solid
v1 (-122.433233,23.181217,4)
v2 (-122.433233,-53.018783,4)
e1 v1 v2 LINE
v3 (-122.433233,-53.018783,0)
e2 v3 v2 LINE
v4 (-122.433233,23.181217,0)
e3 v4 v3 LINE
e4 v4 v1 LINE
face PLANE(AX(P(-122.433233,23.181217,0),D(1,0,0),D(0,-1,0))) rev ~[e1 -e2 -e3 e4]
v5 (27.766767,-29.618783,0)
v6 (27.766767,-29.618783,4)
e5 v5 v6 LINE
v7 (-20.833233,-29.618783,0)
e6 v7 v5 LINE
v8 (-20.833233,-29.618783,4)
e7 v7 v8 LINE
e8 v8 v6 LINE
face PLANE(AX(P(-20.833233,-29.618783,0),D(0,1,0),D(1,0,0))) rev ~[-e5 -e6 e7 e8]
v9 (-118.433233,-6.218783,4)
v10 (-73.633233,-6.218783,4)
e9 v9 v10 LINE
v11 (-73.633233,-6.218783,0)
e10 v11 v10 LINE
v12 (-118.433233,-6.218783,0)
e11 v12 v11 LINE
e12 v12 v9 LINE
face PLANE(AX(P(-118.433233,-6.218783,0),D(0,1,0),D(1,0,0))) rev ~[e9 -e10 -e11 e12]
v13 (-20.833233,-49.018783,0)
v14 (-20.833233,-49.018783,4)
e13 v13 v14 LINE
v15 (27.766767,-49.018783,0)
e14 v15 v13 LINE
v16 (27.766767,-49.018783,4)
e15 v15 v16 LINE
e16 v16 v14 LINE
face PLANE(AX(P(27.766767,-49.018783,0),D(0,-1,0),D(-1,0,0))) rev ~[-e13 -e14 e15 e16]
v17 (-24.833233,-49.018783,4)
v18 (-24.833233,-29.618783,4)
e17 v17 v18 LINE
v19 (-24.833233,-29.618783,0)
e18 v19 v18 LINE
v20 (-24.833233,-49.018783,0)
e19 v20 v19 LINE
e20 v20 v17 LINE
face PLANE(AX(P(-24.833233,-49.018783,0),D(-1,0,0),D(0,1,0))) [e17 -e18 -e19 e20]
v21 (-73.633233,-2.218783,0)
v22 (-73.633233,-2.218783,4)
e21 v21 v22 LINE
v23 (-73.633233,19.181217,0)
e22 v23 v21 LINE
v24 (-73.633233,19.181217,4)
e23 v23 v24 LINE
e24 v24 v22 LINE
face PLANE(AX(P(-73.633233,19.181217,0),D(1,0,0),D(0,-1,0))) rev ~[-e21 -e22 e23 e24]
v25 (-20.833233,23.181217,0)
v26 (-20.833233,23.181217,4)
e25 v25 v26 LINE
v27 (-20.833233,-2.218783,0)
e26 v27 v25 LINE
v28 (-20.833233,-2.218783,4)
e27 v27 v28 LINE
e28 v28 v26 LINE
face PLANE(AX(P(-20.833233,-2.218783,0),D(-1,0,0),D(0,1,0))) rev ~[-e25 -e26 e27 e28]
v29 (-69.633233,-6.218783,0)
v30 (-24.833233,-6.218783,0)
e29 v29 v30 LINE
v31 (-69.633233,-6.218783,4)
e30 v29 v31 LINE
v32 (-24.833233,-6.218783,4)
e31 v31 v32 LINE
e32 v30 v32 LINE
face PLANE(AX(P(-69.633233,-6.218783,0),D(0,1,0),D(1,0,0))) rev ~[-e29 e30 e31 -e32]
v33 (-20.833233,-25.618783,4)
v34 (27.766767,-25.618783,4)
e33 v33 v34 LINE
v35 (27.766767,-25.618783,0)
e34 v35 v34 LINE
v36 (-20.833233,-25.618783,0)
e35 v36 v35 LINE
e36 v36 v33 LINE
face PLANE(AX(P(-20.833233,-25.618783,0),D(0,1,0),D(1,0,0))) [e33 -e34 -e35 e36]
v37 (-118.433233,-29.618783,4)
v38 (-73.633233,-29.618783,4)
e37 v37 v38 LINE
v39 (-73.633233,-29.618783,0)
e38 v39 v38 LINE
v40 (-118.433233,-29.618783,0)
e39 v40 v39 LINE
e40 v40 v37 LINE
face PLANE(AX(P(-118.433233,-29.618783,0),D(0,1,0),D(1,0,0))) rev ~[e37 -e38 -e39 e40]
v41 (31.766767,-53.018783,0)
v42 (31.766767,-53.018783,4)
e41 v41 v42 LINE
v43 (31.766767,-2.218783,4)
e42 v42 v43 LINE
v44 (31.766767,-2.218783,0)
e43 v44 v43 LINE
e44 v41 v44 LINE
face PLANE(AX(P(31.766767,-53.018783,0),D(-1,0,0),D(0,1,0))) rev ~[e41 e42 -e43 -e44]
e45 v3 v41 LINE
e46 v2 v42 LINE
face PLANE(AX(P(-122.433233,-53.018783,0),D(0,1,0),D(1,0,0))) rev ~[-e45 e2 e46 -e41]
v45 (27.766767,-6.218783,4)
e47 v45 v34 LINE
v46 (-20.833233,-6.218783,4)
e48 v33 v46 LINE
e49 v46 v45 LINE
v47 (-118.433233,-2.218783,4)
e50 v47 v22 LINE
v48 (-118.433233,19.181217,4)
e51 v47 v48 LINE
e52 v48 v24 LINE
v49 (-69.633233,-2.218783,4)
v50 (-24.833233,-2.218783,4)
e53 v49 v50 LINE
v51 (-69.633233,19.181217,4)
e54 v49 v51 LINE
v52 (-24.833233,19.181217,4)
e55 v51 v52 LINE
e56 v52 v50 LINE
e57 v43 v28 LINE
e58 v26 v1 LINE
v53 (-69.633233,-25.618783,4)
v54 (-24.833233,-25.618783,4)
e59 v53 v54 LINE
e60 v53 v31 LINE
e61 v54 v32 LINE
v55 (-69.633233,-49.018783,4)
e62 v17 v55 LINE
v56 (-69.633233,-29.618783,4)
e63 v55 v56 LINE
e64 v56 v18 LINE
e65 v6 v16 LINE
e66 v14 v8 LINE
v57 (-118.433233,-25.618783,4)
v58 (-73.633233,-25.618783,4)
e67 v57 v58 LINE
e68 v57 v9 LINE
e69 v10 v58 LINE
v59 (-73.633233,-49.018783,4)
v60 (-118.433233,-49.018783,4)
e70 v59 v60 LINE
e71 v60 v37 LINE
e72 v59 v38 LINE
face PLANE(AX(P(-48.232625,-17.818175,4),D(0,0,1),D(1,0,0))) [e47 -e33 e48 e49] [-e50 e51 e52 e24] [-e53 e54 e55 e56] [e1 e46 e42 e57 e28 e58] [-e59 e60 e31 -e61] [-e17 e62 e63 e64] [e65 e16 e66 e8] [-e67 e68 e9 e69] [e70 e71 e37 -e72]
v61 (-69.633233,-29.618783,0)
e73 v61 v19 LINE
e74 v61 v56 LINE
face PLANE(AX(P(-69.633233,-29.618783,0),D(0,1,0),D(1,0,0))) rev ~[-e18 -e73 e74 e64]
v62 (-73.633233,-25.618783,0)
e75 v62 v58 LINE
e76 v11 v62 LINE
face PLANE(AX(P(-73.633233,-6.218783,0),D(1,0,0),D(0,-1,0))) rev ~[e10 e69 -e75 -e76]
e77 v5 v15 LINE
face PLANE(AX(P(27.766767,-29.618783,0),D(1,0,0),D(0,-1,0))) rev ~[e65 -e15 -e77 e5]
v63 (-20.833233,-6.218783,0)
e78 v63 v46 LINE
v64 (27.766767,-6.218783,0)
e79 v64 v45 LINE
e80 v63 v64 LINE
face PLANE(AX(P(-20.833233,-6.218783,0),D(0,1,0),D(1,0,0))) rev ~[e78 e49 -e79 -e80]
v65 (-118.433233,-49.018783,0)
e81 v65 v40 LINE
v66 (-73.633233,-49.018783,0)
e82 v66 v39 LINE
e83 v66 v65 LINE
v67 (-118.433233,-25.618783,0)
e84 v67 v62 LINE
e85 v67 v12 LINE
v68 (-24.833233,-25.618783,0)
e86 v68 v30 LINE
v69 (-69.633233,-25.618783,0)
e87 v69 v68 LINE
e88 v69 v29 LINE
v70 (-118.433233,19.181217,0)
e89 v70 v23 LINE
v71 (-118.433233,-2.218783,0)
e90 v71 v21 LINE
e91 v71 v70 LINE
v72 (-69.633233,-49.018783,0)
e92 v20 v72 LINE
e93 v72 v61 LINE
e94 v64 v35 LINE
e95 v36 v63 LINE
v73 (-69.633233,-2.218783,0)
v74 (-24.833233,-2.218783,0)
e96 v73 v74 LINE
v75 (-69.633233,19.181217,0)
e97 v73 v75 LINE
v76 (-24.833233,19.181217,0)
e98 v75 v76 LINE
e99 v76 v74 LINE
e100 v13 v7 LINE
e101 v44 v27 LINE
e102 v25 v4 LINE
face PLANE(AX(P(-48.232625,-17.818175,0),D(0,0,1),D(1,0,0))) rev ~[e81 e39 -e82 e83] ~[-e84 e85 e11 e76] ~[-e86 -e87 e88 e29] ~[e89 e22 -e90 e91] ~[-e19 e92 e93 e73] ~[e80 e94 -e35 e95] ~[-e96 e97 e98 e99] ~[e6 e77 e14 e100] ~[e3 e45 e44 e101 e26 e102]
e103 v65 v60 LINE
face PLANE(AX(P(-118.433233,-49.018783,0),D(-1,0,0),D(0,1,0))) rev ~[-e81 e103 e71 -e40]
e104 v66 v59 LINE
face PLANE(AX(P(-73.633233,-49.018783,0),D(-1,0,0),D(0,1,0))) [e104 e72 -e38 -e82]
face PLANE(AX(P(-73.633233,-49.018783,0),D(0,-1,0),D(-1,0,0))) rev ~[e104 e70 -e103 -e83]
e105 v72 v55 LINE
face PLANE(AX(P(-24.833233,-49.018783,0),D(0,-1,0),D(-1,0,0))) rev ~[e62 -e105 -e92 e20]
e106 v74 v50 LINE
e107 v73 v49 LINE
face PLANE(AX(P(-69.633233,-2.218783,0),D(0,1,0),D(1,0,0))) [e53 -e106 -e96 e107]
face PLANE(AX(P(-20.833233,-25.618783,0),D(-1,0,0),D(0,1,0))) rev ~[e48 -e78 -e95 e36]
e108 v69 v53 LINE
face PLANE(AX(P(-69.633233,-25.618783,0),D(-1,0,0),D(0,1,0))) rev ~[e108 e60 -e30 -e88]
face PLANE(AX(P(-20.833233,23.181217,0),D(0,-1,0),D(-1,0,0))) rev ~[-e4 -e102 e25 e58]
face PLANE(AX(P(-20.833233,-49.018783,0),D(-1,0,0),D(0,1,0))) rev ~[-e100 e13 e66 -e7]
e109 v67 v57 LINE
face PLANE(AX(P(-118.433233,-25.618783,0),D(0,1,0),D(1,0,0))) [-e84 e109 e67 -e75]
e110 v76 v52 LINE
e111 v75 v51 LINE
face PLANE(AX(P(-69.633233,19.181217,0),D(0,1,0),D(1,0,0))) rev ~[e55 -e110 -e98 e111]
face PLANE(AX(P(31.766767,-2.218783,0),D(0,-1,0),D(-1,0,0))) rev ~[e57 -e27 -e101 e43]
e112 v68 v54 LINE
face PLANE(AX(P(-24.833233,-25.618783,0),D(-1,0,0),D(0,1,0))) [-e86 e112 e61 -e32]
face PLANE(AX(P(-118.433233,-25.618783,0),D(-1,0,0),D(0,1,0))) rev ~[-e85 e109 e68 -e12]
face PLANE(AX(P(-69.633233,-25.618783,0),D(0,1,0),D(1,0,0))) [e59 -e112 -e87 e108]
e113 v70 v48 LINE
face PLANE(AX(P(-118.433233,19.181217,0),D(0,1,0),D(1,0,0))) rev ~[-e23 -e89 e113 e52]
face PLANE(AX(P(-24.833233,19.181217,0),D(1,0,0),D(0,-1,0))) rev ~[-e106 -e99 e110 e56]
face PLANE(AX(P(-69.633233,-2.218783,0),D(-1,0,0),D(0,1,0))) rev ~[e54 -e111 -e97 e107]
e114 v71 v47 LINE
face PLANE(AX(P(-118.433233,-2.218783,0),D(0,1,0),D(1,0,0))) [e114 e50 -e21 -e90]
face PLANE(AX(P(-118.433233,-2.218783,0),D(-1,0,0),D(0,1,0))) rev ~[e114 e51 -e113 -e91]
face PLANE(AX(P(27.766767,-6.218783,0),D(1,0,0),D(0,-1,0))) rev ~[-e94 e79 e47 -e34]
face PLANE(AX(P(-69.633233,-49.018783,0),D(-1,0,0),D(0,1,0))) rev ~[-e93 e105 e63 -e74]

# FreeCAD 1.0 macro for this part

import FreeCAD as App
import Part
import Sketcher
Q = App.Units.Quantity

doc = App.newDocument("Part")
params = doc.addObject("Spreadsheet::Sheet", "Params")
for row, (alias, value) in enumerate([
    ("sketch1_width", "52.6 mm"),
    ("sketch1_width2", "101.6 mm"),
    ("sketch1_width3", "44.8 mm"),
    ("sketch1_width4", "48.6 mm"),
    ("sketch1_height", "25.4 mm"),
    ("pad1_length", "4 mm"),
], start=1):
    params.set(f"A{row}", alias)
    params.set(f"B{row}", "=" + value)
    params.setAlias(f"B{row}", alias)

body = doc.addObject("PartDesign::Body", "Body")

sketch1 = doc.addObject("Sketcher::SketchObject", "Sketch")
body.addObject(sketch1)
sketch1.AttachmentSupport = (doc.XY_Plane, [""])
sketch1.MapMode = "FlatFace"
sketch1.addGeometry(Part.LineSegment(App.Vector(32, -2, 0), App.Vector(-21, -2, 0)), False)
sketch1.addGeometry(Part.LineSegment(App.Vector(-21, -2, 0), App.Vector(-21, 23, 0)), False)
sketch1.addGeometry(Part.LineSegment(App.Vector(-21, 23, 0), App.Vector(-122, 23, 0)), False)
sketch1.addGeometry(Part.LineSegment(App.Vector(-122, 23, 0), App.Vector(-122, -53, 0)), False)
sketch1.addGeometry(Part.LineSegment(App.Vector(-122, -53, 0), App.Vector(32, -53, 0)), False)
sketch1.addGeometry(Part.LineSegment(App.Vector(32, -53, 0), App.Vector(32, -2, 0)), False)
sketch1.addGeometry(Part.LineSegment(App.Vector(-118, -30, 0), App.Vector(-74, -30, 0)), False)
sketch1.addGeometry(Part.LineSegment(App.Vector(-74, -30, 0), App.Vector(-74, -49, 0)), False)
sketch1.addGeometry(Part.LineSegment(App.Vector(-74, -49, 0), App.Vector(-118, -49, 0)), False)
sketch1.addGeometry(Part.LineSegment(App.Vector(-118, -49, 0), App.Vector(-118, -30, 0)), False)
sketch1.addGeometry(Part.LineSegment(App.Vector(-74, -6, 0), App.Vector(-74, -26, 0)), False)
sketch1.addGeometry(Part.LineSegment(App.Vector(-74, -26, 0), App.Vector(-118, -26, 0)), False)
sketch1.addGeometry(Part.LineSegment(App.Vector(-118, -26, 0), App.Vector(-118, -6, 0)), False)
sketch1.addGeometry(Part.LineSegment(App.Vector(-118, -6, 0), App.Vector(-74, -6, 0)), False)
sketch1.addGeometry(Part.LineSegment(App.Vector(-25, -6, 0), App.Vector(-25, -26, 0)), False)
sketch1.addGeometry(Part.LineSegment(App.Vector(-25, -26, 0), App.Vector(-70, -26, 0)), False)
sketch1.addGeometry(Part.LineSegment(App.Vector(-70, -26, 0), App.Vector(-70, -6, 0)), False)
sketch1.addGeometry(Part.LineSegment(App.Vector(-70, -6, 0), App.Vector(-25, -6, 0)), False)
sketch1.addGeometry(Part.LineSegment(App.Vector(-70, -30, 0), App.Vector(-25, -30, 0)), False)
sketch1.addGeometry(Part.LineSegment(App.Vector(-25, -30, 0), App.Vector(-25, -49, 0)), False)
sketch1.addGeometry(Part.LineSegment(App.Vector(-25, -49, 0), App.Vector(-70, -49, 0)), False)
sketch1.addGeometry(Part.LineSegment(App.Vector(-70, -49, 0), App.Vector(-70, -30, 0)), False)
sketch1.addGeometry(Part.LineSegment(App.Vector(-21, -6, 0), App.Vector(28, -6, 0)), False)
sketch1.addGeometry(Part.LineSegment(App.Vector(28, -6, 0), App.Vector(28, -26, 0)), False)
sketch1.addGeometry(Part.LineSegment(App.Vector(28, -26, 0), App.Vector(-21, -26, 0)), False)
sketch1.addGeometry(Part.LineSegment(App.Vector(-21, -26, 0), App.Vector(-21, -6, 0)), False)
sketch1.addGeometry(Part.LineSegment(App.Vector(28, -30, 0), App.Vector(28, -49, 0)), False)
sketch1.addGeometry(Part.LineSegment(App.Vector(28, -49, 0), App.Vector(-21, -49, 0)), False)
sketch1.addGeometry(Part.LineSegment(App.Vector(-21, -49, 0), App.Vector(-21, -30, 0)), False)
sketch1.addGeometry(Part.LineSegment(App.Vector(-21, -30, 0), App.Vector(28, -30, 0)), False)
sketch1.addGeometry(Part.LineSegment(App.Vector(-74, 19, 0), App.Vector(-74, -2, 0)), False)
sketch1.addGeometry(Part.LineSegment(App.Vector(-74, -2, 0), App.Vector(-118, -2, 0)), False)
sketch1.addGeometry(Part.LineSegment(App.Vector(-118, -2, 0), App.Vector(-118, 19, 0)), False)
sketch1.addGeometry(Part.LineSegment(App.Vector(-118, 19, 0), App.Vector(-74, 19, 0)), False)
sketch1.addGeometry(Part.LineSegment(App.Vector(-25, 19, 0), App.Vector(-25, -2, 0)), False)
sketch1.addGeometry(Part.LineSegment(App.Vector(-25, -2, 0), App.Vector(-70, -2, 0)), False)
sketch1.addGeometry(Part.LineSegment(App.Vector(-70, -2, 0), App.Vector(-70, 19, 0)), False)
sketch1.addGeometry(Part.LineSegment(App.Vector(-70, 19, 0), App.Vector(-25, 19, 0)), False)
sketch1.addConstraint(Sketcher.Constraint("Coincident", 0, 2, 1, 1))
sketch1.addConstraint(Sketcher.Constraint("Coincident", 1, 2, 2, 1))
sketch1.addConstraint(Sketcher.Constraint("Coincident", 2, 2, 3, 1))
sketch1.addConstraint(Sketcher.Constraint("Coincident", 3, 2, 4, 1))
sketch1.addConstraint(Sketcher.Constraint("Coincident", 4, 2, 5, 1))
sketch1.addConstraint(Sketcher.Constraint("Coincident", 5, 2, 0, 1))
sketch1.addConstraint(Sketcher.Constraint("Coincident", 6, 2, 7, 1))
sketch1.addConstraint(Sketcher.Constraint("Coincident", 7, 2, 8, 1))
sketch1.addConstraint(Sketcher.Constraint("Coincident", 8, 2, 9, 1))
sketch1.addConstraint(Sketcher.Constraint("Coincident", 9, 2, 6, 1))
sketch1.addConstraint(Sketcher.Constraint("Coincident", 10, 2, 11, 1))
sketch1.addConstraint(Sketcher.Constraint("Coincident", 11, 2, 12, 1))
sketch1.addConstraint(Sketcher.Constraint("Coincident", 12, 2, 13, 1))
sketch1.addConstraint(Sketcher.Constraint("Coincident", 13, 2, 10, 1))
sketch1.addConstraint(Sketcher.Constraint("Coincident", 14, 2, 15, 1))
sketch1.addConstraint(Sketcher.Constraint("Coincident", 15, 2, 16, 1))
sketch1.addConstraint(Sketcher.Constraint("Coincident", 16, 2, 17, 1))
sketch1.addConstraint(Sketcher.Constraint("Coincident", 17, 2, 14, 1))
sketch1.addConstraint(Sketcher.Constraint("Coincident", 18, 2, 19, 1))
sketch1.addConstraint(Sketcher.Constraint("Coincident", 19, 2, 20, 1))
sketch1.addConstraint(Sketcher.Constraint("Coincident", 20, 2, 21, 1))
sketch1.addConstraint(Sketcher.Constraint("Coincident", 21, 2, 18, 1))
sketch1.addConstraint(Sketcher.Constraint("Coincident", 22, 2, 23, 1))
sketch1.addConstraint(Sketcher.Constraint("Coincident", 23, 2, 24, 1))
sketch1.addConstraint(Sketcher.Constraint("Coincident", 24, 2, 25, 1))
sketch1.addConstraint(Sketcher.Constraint("Coincident", 25, 2, 22, 1))
sketch1.addConstraint(Sketcher.Constraint("Coincident", 26, 2, 27, 1))
sketch1.addConstraint(Sketcher.Constraint("Coincident", 27, 2, 28, 1))
sketch1.addConstraint(Sketcher.Constraint("Coincident", 28, 2, 29, 1))
sketch1.addConstraint(Sketcher.Constraint("Coincident", 29, 2, 26, 1))
sketch1.addConstraint(Sketcher.Constraint("Coincident", 30, 2, 31, 1))
sketch1.addConstraint(Sketcher.Constraint("Coincident", 31, 2, 32, 1))
sketch1.addConstraint(Sketcher.Constraint("Coincident", 32, 2, 33, 1))
sketch1.addConstraint(Sketcher.Constraint("Coincident", 33, 2, 30, 1))
sketch1.addConstraint(Sketcher.Constraint("Coincident", 34, 2, 35, 1))
sketch1.addConstraint(Sketcher.Constraint("Coincident", 35, 2, 36, 1))
sketch1.addConstraint(Sketcher.Constraint("Coincident", 36, 2, 37, 1))
sketch1.addConstraint(Sketcher.Constraint("Coincident", 37, 2, 34, 1))
sketch1.addConstraint(Sketcher.Constraint("Horizontal", 0))
sketch1.addConstraint(Sketcher.Constraint("Vertical", 1))
sketch1.addConstraint(Sketcher.Constraint("Horizontal", 2))
sketch1.addConstraint(Sketcher.Constraint("Vertical", 3))
sketch1.addConstraint(Sketcher.Constraint("Horizontal", 4))
sketch1.addConstraint(Sketcher.Constraint("Vertical", 5))
sketch1.addConstraint(Sketcher.Constraint("Horizontal", 6))
sketch1.addConstraint(Sketcher.Constraint("Vertical", 7))
sketch1.addConstraint(Sketcher.Constraint("Horizontal", 8))
sketch1.addConstraint(Sketcher.Constraint("Vertical", 9))
sketch1.addConstraint(Sketcher.Constraint("Vertical", 10))
sketch1.addConstraint(Sketcher.Constraint("Horizontal", 11))
sketch1.addConstraint(Sketcher.Constraint("Vertical", 12))
sketch1.addConstraint(Sketcher.Constraint("Horizontal", 13))
sketch1.addConstraint(Sketcher.Constraint("Vertical", 14))
sketch1.addConstraint(Sketcher.Constraint("Horizontal", 15))
sketch1.addConstraint(Sketcher.Constraint("Vertical", 16))
sketch1.addConstraint(Sketcher.Constraint("Horizontal", 17))
sketch1.addConstraint(Sketcher.Constraint("Horizontal", 18))
sketch1.addConstraint(Sketcher.Constraint("Vertical", 19))
sketch1.addConstraint(Sketcher.Constraint("Horizontal", 20))
sketch1.addConstraint(Sketcher.Constraint("Vertical", 21))
sketch1.addConstraint(Sketcher.Constraint("Horizontal", 22))
sketch1.addConstraint(Sketcher.Constraint("Vertical", 23))
sketch1.addConstraint(Sketcher.Constraint("Horizontal", 24))
sketch1.addConstraint(Sketcher.Constraint("Vertical", 25))
sketch1.addConstraint(Sketcher.Constraint("Vertical", 26))
sketch1.addConstraint(Sketcher.Constraint("Horizontal", 27))
sketch1.addConstraint(Sketcher.Constraint("Vertical", 28))
sketch1.addConstraint(Sketcher.Constraint("Horizontal", 29))
sketch1.addConstraint(Sketcher.Constraint("Vertical", 30))
sketch1.addConstraint(Sketcher.Constraint("Horizontal", 31))
sketch1.addConstraint(Sketcher.Constraint("Vertical", 32))
sketch1.addConstraint(Sketcher.Constraint("Horizontal", 33))
sketch1.addConstraint(Sketcher.Constraint("Vertical", 34))
sketch1.addConstraint(Sketcher.Constraint("Horizontal", 35))
sketch1.addConstraint(Sketcher.Constraint("Vertical", 36))
sketch1.addConstraint(Sketcher.Constraint("Horizontal", 37))
sketch1.addConstraint(Sketcher.Constraint("Horizontal", 11, 2, 14, 2))
sketch1.addConstraint(Sketcher.Constraint("Horizontal", 13, 2, 16, 2))
sketch1.addConstraint(Sketcher.Constraint("Horizontal", 9, 2, 18, 2))
sketch1.addConstraint(Sketcher.Constraint("Horizontal", 8, 2, 19, 2))
sketch1.addConstraint(Sketcher.Constraint("Horizontal", 17, 2, 22, 2))
sketch1.addConstraint(Sketcher.Constraint("Horizontal", 15, 2, 23, 2))
sketch1.addConstraint(Sketcher.Constraint("Horizontal", 20, 2, 26, 2))
sketch1.addConstraint(Sketcher.Constraint("Horizontal", 21, 2, 28, 2))
sketch1.addConstraint(Sketcher.Constraint("Horizontal", 5, 2, 30, 2))
sketch1.addConstraint(Sketcher.Constraint("Horizontal", 31, 2, 34, 2))
sketch1.addConstraint(Sketcher.Constraint("Horizontal", 33, 2, 36, 2))
sketch1.addConstraint(Sketcher.Constraint("Vertical", 7, 2, 10, 2))
sketch1.addConstraint(Sketcher.Constraint("Vertical", 9, 2, 11, 2))
sketch1.addConstraint(Sketcher.Constraint("Vertical", 17, 2, 18, 2))
sketch1.addConstraint(Sketcher.Constraint("Vertical", 16, 2, 20, 2))
sketch1.addConstraint(Sketcher.Constraint("Vertical", 1, 2, 24, 2))
sketch1.addConstraint(Sketcher.Constraint("Vertical", 23, 2, 26, 2))
sketch1.addConstraint(Sketcher.Constraint("Vertical", 25, 2, 27, 2))
sketch1.addConstraint(Sketcher.Constraint("Vertical", 13, 2, 30, 2))
sketch1.addConstraint(Sketcher.Constraint("Vertical", 12, 2, 31, 2))
sketch1.addConstraint(Sketcher.Constraint("Vertical", 19, 2, 34, 2))
sketch1.addConstraint(Sketcher.Constraint("Vertical", 21, 2, 35, 2))
sketch1.addConstraint(Sketcher.Constraint("Equal", 13, 15))
sketch1.addConstraint(Sketcher.Constraint("Equal", 9, 10))
sketch1.addConstraint(Sketcher.Constraint("DistanceX", 0, 2, 0, 1, Q("52.6 mm")))
sketch1.addConstraint(Sketcher.Constraint("DistanceX", 2, 2, 2, 1, Q("101.6 mm")))
sketch1.addConstraint(Sketcher.Constraint("DistanceX", 6, 1, 6, 2, Q("44.8 mm")))
sketch1.addConstraint(Sketcher.Constraint("DistanceX", 22, 1, 22, 2, Q("48.6 mm")))
sketch1.addConstraint(Sketcher.Constraint("DistanceY", 1, 1, 1, 2, Q("25.4 mm")))
sketch1.addConstraint(Sketcher.Constraint("DistanceY", 3, 2, 3, 1, Q("76.2 mm")))
sketch1.addConstraint(Sketcher.Constraint("DistanceY", 7, 2, 7, 1, Q("19.4 mm")))
sketch1.addConstraint(Sketcher.Constraint("DistanceY", 30, 2, 30, 1, Q("21.4 mm")))
sketch1.addConstraint(Sketcher.Constraint("DistanceY", 3, 2, 7, 2, Q("4 mm")))
sketch1.addConstraint(Sketcher.Constraint("DistanceX", 3, 2, 8, 2, Q("4 mm")))
sketch1.addConstraint(Sketcher.Constraint("DistanceY", 6, 2, 10, 2, Q("4 mm")))
sketch1.addConstraint(Sketcher.Constraint("DistanceX", 14, 2, 0, 2, Q("4 mm")))
sketch1.addConstraint(Sketcher.Constraint("DistanceX", 0, 2, -1, 1, Q("20.833233 mm")))
sketch1.addConstraint(Sketcher.Constraint("DistanceY", 0, 2, -1, 1, Q("2.218783 mm")))
sketch1.setExpression("Constraints[100]", "Params.sketch1_width")
sketch1.setExpression("Constraints[101]", "Params.sketch1_width2")
sketch1.setExpression("Constraints[102]", "Params.sketch1_width3")
sketch1.setExpression("Constraints[103]", "Params.sketch1_width4")
sketch1.setExpression("Constraints[104]", "Params.sketch1_height")
pad1 = doc.addObject("PartDesign::Pad", "Pad")
body.addObject(pad1)
pad1.Profile = sketch1
pad1.setExpression("Length", "Params.pad1_length")

doc.recompute()
